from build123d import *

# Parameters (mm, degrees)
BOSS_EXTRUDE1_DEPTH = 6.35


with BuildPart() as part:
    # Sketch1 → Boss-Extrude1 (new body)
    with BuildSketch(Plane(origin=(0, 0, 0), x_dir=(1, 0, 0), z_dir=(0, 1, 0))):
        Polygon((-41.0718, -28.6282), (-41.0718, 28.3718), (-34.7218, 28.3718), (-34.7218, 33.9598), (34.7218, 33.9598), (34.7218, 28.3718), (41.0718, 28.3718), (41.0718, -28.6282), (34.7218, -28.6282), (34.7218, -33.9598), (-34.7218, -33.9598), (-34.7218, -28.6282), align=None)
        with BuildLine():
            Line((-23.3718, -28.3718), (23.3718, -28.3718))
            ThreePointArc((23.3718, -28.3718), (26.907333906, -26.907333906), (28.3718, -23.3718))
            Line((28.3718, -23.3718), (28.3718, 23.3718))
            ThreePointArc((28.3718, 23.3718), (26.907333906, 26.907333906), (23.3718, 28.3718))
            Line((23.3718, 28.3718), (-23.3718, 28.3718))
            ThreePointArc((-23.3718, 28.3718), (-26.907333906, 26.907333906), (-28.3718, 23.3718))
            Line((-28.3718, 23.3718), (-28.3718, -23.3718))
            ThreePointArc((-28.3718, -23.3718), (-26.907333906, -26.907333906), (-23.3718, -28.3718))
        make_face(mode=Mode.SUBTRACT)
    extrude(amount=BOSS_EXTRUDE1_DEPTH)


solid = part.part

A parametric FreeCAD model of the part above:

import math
import FreeCAD as App
import Part
import Sketcher
Q = App.Units.Quantity


def add_polygon(sketch, points):
    """Adds a closed chain of lines whose ends are joined by coincident constraints."""
    first, n = sketch.GeometryCount, len(points)
    for a, b in zip(points, points[1:] + points[:1]):
        sketch.addGeometry(Part.LineSegment(App.Vector(*a, 0), App.Vector(*b, 0)), False)
    for i in range(n):
        sketch.addConstraint(Sketcher.Constraint("Coincident", first + i, 2, first + (i + 1) % n, 1))

doc = App.newDocument("Part")
body = doc.addObject("PartDesign::Body", "Body")

sketch1 = body.newObject("Sketcher::SketchObject", "Sketch")
sketch1.AttachmentSupport = (doc.getObject("XZ_Plane"), [""])
sketch1.MapMode = "FlatFace"
add_polygon(sketch1, [(-41.0718, -28.3718), (-41.0718, 28.6282), (-34.7218, 28.6282), (-34.7218, 33.9598), (34.7218, 33.9598), (34.7218, 28.6282), (41.0718, 28.6282), (41.0718, -28.3718), (34.7218, -28.3718), (34.7218, -33.9598), (-34.7218, -33.9598), (-34.7218, -28.3718)])
sketch1.addGeometry(Part.ArcOfCircle(Part.Circle(App.Vector(-23.3718, 23.3718, 0), App.Vector(0, 0, 1), 5), math.radians(90), math.radians(180)), False)
sketch1.addGeometry(Part.LineSegment(App.Vector(-28.3718, 23.3718, 0), App.Vector(-28.3718, -23.3718, 0)), False)
sketch1.addGeometry(Part.ArcOfCircle(Part.Circle(App.Vector(-23.3718, -23.3718, 0), App.Vector(0, 0, 1), 5), math.radians(180), math.radians(270)), False)
sketch1.addGeometry(Part.LineSegment(App.Vector(-23.3718, -28.3718, 0), App.Vector(23.3718, -28.3718, 0)), False)
sketch1.addGeometry(Part.ArcOfCircle(Part.Circle(App.Vector(23.3718, -23.3718, 0), App.Vector(0, 0, 1), 5), math.radians(-90), math.radians(0)), False)
sketch1.addGeometry(Part.LineSegment(App.Vector(28.3718, -23.3718, 0), App.Vector(28.3718, 23.3718, 0)), False)
sketch1.addGeometry(Part.ArcOfCircle(Part.Circle(App.Vector(23.3718, 23.3718, 0), App.Vector(0, 0, 1), 5), math.radians(0), math.radians(90)), False)
sketch1.addGeometry(Part.LineSegment(App.Vector(23.3718, 28.3718, 0), App.Vector(-23.3718, 28.3718, 0)), False)
sketch1.addConstraint([
    Sketcher.Constraint("Tangent", 12, 2, 13, 1),
    Sketcher.Constraint("Tangent", 13, 2, 14, 1),
    Sketcher.Constraint("Tangent", 14, 2, 15, 1),
    Sketcher.Constraint("Tangent", 15, 2, 16, 1),
    Sketcher.Constraint("Tangent", 16, 2, 17, 1),
    Sketcher.Constraint("Tangent", 17, 2, 18, 1),
    Sketcher.Constraint("Tangent", 18, 2, 19, 1),
    Sketcher.Constraint("Tangent", 19, 2, 12, 1),
    Sketcher.Constraint("Vertical", 0),
    Sketcher.Constraint("Horizontal", 1),
    Sketcher.Constraint("Vertical", 2),
    Sketcher.Constraint("Horizontal", 3),
    Sketcher.Constraint("Vertical", 4),
    Sketcher.Constraint("Horizontal", 5),
    Sketcher.Constraint("Vertical", 6),
    Sketcher.Constraint("Horizontal", 7),
    Sketcher.Constraint("Vertical", 8),
    Sketcher.Constraint("Horizontal", 9),
    Sketcher.Constraint("Vertical", 10),
    Sketcher.Constraint("Horizontal", 11),
    Sketcher.Constraint("Vertical", 13),
    Sketcher.Constraint("Horizontal", 15),
    Sketcher.Constraint("Vertical", 17),
    Sketcher.Constraint("Horizontal", 19),
    Sketcher.Constraint("Equal", 12, 14),
    Sketcher.Constraint("Equal", 14, 16),
    Sketcher.Constraint("Equal", 16, 18),
    Sketcher.Constraint("Symmetric", 12, 3, 16, 3, -1, 1),
    Sketcher.Constraint("Symmetric", 2, 2, 8, 2, -1, 1),
    Sketcher.Constraint("Symmetric", 1, 2, 4, 2, -2),
    Sketcher.Constraint("Symmetric", 7, 2, 10, 2, -2),
    Sketcher.Constraint("Horizontal", 11, 2, 14, 2),
    Sketcher.Constraint("Equal", 1, 5),
    Sketcher.Constraint("Equal", 19, 13),
    Sketcher.Constraint("DistanceX", 1, 1, 1, 2, Q("0.25 in")),
    Sketcher.Constraint("DistanceY", 8, 2, 8, 1, Q("0.22 in")),
    Sketcher.Constraint("DistanceX", 0, 2, 12, 2, Q("0.5 in")),
    Sketcher.Constraint("DistanceX", 3, 1, 3, 2, Q("2.734 in")),
    Sketcher.Constraint("Radius", 12, 5.0),
    Sketcher.Constraint("DistanceY", 0, 1, 0, 2, 57.0),
])
pad1 = body.newObject("PartDesign::Pad", "Pad")
pad1.Profile = sketch1
pad1.Length = Q("0.25 in")
pad1.Reversed = True

doc.recompute()
